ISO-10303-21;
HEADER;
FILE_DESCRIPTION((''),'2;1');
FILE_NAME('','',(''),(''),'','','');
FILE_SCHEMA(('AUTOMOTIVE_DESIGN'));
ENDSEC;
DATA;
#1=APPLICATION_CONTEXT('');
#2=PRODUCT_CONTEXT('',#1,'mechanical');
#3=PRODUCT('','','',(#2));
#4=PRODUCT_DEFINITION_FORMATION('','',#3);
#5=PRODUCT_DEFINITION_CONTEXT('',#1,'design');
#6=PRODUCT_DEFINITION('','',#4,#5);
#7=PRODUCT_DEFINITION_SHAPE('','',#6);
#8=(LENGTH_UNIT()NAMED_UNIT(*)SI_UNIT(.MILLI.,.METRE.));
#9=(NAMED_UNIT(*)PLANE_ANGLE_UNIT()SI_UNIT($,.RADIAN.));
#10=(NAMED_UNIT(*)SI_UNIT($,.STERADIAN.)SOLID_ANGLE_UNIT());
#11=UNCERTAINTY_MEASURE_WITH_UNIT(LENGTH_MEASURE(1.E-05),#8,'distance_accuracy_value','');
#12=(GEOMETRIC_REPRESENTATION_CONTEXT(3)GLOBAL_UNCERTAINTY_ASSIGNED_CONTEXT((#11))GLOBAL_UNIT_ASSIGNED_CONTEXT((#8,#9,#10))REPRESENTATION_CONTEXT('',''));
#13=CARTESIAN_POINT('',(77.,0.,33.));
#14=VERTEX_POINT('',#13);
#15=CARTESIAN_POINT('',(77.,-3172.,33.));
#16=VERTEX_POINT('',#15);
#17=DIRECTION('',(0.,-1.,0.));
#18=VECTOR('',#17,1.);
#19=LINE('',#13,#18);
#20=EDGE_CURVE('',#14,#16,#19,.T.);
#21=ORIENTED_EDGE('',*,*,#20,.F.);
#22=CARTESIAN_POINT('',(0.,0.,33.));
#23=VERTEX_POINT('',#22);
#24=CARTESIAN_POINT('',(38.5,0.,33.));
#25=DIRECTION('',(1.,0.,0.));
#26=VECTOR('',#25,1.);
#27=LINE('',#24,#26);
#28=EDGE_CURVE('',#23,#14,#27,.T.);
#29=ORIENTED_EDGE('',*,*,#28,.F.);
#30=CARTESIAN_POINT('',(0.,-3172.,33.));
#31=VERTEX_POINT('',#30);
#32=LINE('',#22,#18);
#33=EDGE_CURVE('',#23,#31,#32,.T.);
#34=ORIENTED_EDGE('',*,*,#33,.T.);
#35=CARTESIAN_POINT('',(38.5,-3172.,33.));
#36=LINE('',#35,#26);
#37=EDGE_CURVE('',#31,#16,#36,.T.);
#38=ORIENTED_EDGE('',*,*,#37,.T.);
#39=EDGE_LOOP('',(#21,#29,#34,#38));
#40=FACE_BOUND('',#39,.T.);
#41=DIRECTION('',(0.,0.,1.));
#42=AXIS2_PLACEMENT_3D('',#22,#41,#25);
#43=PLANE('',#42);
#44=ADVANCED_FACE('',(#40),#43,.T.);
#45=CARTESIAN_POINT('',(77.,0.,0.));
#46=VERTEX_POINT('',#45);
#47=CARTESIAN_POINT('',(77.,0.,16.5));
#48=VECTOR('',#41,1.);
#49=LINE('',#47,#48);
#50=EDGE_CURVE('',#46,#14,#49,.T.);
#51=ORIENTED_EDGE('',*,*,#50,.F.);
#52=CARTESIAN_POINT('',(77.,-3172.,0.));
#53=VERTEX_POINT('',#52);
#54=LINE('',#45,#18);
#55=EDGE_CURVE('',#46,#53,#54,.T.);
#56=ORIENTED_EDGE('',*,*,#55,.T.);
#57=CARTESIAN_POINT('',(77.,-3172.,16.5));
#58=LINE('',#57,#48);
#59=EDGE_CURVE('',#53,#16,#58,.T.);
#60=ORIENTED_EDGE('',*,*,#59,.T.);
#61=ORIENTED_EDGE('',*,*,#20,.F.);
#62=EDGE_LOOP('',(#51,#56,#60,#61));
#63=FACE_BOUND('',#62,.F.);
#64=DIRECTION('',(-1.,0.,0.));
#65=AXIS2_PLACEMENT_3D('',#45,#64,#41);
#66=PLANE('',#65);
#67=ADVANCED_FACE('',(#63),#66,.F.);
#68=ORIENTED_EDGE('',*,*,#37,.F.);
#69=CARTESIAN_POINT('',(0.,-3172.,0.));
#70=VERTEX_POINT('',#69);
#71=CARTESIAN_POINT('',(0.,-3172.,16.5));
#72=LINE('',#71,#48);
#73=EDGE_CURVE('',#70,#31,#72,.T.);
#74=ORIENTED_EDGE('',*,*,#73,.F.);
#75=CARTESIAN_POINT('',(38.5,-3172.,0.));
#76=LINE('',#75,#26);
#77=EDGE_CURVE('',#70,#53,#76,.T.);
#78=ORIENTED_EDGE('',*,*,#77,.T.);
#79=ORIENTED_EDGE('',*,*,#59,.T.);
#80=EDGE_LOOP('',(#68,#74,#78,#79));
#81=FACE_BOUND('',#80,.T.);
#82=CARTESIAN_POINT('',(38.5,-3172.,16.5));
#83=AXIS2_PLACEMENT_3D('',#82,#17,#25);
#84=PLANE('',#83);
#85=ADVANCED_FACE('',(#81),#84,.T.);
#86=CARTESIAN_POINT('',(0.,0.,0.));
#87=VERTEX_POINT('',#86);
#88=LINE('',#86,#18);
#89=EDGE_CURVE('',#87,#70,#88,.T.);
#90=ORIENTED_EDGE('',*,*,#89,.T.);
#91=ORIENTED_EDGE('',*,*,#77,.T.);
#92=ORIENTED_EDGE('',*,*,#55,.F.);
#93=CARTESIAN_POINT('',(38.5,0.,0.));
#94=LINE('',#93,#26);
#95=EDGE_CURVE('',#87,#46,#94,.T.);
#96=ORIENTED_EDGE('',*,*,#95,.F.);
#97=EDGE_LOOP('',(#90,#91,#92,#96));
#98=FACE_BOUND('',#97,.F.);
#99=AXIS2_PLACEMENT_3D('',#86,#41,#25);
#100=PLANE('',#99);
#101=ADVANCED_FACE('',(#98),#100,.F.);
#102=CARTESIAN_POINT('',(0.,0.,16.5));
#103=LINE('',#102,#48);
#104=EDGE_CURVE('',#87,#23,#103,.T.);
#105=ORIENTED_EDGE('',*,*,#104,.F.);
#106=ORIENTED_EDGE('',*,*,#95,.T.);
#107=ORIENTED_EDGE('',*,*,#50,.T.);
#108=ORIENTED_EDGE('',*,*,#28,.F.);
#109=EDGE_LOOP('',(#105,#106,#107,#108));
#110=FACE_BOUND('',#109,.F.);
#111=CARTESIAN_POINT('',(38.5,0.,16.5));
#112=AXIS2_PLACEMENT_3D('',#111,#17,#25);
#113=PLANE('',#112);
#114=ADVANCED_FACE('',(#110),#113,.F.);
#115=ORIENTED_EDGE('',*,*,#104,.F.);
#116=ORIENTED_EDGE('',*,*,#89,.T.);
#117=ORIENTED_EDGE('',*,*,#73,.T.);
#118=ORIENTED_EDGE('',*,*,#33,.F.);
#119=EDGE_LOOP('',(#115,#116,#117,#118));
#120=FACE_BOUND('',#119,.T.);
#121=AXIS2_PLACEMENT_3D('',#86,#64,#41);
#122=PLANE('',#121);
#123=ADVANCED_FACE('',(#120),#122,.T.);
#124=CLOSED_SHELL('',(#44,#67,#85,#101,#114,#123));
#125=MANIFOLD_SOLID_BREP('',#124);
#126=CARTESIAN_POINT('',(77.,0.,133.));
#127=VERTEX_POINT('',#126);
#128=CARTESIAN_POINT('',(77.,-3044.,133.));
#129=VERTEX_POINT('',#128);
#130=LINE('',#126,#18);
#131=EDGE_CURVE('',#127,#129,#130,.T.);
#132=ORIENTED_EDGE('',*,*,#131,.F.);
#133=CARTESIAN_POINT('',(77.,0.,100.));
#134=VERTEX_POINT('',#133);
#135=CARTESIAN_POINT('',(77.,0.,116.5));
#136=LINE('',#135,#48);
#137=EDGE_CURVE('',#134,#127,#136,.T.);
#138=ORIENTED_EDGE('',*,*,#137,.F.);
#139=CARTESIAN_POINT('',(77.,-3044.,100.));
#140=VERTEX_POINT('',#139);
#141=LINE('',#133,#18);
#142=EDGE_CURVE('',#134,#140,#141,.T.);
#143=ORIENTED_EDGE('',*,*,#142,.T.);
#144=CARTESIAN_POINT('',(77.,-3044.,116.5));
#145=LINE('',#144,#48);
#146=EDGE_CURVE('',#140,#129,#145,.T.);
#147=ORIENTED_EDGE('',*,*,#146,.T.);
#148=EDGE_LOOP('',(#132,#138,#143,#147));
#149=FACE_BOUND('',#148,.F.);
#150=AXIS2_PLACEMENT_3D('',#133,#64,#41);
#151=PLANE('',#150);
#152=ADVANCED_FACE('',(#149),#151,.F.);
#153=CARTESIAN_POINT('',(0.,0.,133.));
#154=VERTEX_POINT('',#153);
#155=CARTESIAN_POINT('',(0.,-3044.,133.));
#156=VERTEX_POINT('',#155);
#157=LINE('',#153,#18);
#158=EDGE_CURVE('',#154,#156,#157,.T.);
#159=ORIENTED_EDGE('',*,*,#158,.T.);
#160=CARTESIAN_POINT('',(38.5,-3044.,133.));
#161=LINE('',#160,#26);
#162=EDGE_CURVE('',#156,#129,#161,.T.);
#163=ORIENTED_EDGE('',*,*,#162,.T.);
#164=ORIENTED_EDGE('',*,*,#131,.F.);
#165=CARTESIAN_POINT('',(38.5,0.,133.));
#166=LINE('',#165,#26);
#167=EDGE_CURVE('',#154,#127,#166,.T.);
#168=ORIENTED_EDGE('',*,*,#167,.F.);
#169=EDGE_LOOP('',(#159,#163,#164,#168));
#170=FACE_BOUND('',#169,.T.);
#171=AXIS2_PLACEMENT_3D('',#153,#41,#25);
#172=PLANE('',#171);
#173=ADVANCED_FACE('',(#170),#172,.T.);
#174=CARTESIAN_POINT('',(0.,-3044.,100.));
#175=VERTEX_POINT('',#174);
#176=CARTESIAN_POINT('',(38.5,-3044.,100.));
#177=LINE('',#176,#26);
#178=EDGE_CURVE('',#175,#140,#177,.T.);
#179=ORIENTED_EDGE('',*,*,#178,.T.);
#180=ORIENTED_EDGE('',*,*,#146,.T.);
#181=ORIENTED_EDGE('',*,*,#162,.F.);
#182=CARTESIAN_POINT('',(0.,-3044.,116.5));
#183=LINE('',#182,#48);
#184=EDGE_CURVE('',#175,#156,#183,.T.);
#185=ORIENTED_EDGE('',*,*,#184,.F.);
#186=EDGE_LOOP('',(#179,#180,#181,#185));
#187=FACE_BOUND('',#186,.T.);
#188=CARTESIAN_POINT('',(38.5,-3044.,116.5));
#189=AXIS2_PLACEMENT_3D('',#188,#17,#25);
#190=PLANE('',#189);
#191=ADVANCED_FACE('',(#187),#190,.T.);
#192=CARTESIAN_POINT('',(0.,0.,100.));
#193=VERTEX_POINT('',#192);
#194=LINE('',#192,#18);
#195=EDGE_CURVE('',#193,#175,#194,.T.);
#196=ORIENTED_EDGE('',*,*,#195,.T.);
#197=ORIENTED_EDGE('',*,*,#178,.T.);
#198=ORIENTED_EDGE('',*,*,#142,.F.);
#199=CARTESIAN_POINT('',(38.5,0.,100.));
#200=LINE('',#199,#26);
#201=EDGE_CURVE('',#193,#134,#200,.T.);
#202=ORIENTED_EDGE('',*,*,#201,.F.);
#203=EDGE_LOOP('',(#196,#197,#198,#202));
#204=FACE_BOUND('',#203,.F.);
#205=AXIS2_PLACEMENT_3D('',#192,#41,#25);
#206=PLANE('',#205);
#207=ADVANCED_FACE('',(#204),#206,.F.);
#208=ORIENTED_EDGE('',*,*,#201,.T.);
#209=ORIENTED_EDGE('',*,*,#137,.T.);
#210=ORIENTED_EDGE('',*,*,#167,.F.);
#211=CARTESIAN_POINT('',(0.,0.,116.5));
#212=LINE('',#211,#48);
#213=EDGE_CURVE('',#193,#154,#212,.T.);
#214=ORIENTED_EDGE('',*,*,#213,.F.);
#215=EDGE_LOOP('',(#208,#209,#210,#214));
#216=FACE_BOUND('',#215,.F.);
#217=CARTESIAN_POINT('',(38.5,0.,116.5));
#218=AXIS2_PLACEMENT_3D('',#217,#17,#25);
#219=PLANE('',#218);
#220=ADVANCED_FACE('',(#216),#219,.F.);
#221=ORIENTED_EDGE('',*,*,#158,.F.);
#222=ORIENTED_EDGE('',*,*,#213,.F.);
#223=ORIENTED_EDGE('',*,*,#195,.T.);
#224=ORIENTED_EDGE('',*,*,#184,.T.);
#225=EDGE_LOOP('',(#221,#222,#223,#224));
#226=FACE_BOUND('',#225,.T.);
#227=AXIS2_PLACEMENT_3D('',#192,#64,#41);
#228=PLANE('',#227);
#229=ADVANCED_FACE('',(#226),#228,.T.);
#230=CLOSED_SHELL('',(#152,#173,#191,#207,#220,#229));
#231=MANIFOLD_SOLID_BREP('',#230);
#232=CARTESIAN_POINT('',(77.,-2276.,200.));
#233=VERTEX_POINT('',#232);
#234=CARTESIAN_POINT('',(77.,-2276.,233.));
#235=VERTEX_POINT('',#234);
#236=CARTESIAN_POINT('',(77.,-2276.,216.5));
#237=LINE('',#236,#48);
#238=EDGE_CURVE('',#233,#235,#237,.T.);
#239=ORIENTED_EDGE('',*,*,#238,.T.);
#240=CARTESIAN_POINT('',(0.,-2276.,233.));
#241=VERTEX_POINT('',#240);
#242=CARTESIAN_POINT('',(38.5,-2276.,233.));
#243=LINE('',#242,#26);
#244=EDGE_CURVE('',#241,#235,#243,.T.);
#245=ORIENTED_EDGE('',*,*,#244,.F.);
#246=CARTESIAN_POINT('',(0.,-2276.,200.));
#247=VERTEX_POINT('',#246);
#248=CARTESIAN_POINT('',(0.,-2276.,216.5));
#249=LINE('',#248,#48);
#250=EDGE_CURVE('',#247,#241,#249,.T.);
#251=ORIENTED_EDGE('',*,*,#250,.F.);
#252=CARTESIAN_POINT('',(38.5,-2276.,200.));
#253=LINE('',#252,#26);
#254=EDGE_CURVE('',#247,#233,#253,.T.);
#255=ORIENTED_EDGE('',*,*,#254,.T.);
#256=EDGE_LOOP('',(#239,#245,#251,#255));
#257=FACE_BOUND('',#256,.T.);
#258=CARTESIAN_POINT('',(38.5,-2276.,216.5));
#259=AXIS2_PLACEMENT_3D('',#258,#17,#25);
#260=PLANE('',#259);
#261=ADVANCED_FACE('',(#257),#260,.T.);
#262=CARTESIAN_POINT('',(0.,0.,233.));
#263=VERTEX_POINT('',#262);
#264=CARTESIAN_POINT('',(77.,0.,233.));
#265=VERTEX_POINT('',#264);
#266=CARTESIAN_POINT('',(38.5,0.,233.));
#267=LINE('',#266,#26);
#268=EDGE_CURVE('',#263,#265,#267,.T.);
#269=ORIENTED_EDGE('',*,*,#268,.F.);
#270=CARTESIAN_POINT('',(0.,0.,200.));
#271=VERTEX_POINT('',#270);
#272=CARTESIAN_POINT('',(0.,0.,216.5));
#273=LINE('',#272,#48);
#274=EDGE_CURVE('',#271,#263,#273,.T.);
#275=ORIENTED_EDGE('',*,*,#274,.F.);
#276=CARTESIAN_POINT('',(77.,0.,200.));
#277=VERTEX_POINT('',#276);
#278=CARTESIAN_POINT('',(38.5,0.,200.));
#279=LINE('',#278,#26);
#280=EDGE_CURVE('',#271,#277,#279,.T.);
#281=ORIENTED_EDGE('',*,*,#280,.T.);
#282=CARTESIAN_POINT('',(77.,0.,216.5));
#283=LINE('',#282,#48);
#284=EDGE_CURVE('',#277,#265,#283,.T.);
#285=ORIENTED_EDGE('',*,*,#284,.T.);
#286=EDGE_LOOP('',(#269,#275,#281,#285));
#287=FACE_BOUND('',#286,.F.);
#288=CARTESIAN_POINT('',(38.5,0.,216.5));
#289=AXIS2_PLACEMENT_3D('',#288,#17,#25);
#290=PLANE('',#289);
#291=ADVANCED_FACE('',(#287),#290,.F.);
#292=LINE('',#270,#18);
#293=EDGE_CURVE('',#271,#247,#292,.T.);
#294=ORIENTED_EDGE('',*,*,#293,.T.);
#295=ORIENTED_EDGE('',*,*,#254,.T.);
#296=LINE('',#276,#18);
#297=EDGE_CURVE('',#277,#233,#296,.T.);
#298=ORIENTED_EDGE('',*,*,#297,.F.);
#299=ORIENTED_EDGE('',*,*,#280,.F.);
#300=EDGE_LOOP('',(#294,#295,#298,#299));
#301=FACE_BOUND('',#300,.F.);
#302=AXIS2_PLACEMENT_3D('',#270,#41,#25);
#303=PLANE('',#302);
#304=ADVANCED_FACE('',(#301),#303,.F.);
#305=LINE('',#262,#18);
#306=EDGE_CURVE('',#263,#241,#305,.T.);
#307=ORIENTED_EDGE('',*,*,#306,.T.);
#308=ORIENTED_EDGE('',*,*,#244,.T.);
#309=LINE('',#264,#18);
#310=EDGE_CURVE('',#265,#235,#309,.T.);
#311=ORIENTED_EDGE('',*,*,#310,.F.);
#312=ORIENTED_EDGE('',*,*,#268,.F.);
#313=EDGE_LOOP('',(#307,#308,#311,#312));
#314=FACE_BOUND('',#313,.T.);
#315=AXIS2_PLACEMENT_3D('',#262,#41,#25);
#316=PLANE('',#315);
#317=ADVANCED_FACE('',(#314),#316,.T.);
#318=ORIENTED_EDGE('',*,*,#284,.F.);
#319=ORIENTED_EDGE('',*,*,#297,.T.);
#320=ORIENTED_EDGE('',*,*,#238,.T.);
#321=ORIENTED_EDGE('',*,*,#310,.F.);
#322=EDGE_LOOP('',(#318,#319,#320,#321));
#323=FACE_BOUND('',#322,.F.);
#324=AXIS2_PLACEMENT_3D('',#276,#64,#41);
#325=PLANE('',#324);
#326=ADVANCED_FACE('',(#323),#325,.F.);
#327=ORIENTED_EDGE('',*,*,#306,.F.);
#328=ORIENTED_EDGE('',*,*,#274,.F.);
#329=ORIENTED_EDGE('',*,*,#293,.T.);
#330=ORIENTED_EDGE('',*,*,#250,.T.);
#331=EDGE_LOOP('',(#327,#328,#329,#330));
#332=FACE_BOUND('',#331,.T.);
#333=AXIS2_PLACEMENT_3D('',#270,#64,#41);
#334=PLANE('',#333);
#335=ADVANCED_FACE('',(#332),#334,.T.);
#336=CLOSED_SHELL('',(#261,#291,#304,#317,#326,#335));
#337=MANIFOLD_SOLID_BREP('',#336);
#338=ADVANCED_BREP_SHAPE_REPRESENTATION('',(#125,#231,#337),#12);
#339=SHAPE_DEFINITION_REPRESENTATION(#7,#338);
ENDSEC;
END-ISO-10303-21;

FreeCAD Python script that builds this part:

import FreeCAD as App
import Part
import Sketcher

doc = App.newDocument("Part")
body = doc.addObject("PartDesign::Body", "Body")

sketch1 = body.newObject("Sketcher::SketchObject", "Sketch")
sketch1.AttachmentSupport = (doc.getObject("XZ_Plane"), [""])
sketch1.MapMode = "FlatFace"
sketch1.addGeometry([
    Part.LineSegment(App.Vector(0, 33, 0), App.Vector(0, 0, 0)),
    Part.LineSegment(App.Vector(0, 0, 0), App.Vector(77, 0, 0)),
    Part.LineSegment(App.Vector(77, 0, 0), App.Vector(77, 33, 0)),
    Part.LineSegment(App.Vector(77, 33, 0), App.Vector(0, 33, 0)),
], False)
sketch1.addConstraint([
    Sketcher.Constraint("Coincident", 0, 2, 1, 1),
    Sketcher.Constraint("Coincident", 1, 2, 2, 1),
    Sketcher.Constraint("Coincident", 2, 2, 3, 1),
    Sketcher.Constraint("Coincident", 3, 2, 0, 1),
    Sketcher.Constraint("Vertical", 0),
    Sketcher.Constraint("Horizontal", 1),
    Sketcher.Constraint("Vertical", 2),
    Sketcher.Constraint("Horizontal", 3),
    Sketcher.Constraint("Coincident", 0, 2, -1, 1),
    Sketcher.Constraint("DistanceX", 1, 1, 1, 2, 77.0),
    Sketcher.Constraint("DistanceY", 0, 2, 0, 1, 33.0),
])
pad1 = body.newObject("PartDesign::Pad", "Pad")
pad1.Profile = sketch1
pad1.Length = 3172
body2 = doc.addObject("PartDesign::Body", "Body001")

sketch2 = body2.newObject("Sketcher::SketchObject", "Sketch001")
sketch2.AttachmentSupport = (doc.getObject("XZ_Plane001"), [""])
sketch2.MapMode = "FlatFace"
sketch2.addGeometry([
    Part.LineSegment(App.Vector(0, 133, 0), App.Vector(0, 100, 0)),
    Part.LineSegment(App.Vector(0, 100, 0), App.Vector(77, 100, 0)),
    Part.LineSegment(App.Vector(77, 100, 0), App.Vector(77, 133, 0)),
    Part.LineSegment(App.Vector(77, 133, 0), App.Vector(0, 133, 0)),
], False)
sketch2.addConstraint([
    Sketcher.Constraint("Coincident", 0, 2, 1, 1),
    Sketcher.Constraint("Coincident", 1, 2, 2, 1),
    Sketcher.Constraint("Coincident", 2, 2, 3, 1),
    Sketcher.Constraint("Coincident", 3, 2, 0, 1),
    Sketcher.Constraint("Vertical", 0),
    Sketcher.Constraint("Horizontal", 1),
    Sketcher.Constraint("Vertical", 2),
    Sketcher.Constraint("Horizontal", 3),
    Sketcher.Constraint("PointOnObject", 0, 2, -2),
    Sketcher.Constraint("DistanceX", 1, 1, 1, 2, 77.0),
    Sketcher.Constraint("DistanceY", 0, 2, 0, 1, 33.0),
    Sketcher.Constraint("DistanceY", -1, 1, 0, 2, 100.0),
])
pad2 = body2.newObject("PartDesign::Pad", "Pad001")
pad2.Profile = sketch2
pad2.Length = 3044
body3 = doc.addObject("PartDesign::Body", "Body002")

sketch3 = body3.newObject("Sketcher::SketchObject", "Sketch002")
sketch3.AttachmentSupport = (doc.getObject("XZ_Plane002"), [""])
sketch3.MapMode = "FlatFace"
sketch3.addGeometry([
    Part.LineSegment(App.Vector(0, 233, 0), App.Vector(0, 200, 0)),
    Part.LineSegment(App.Vector(0, 200, 0), App.Vector(77, 200, 0)),
    Part.LineSegment(App.Vector(77, 200, 0), App.Vector(77, 233, 0)),
    Part.LineSegment(App.Vector(77, 233, 0), App.Vector(0, 233, 0)),
], False)
sketch3.addConstraint([
    Sketcher.Constraint("Coincident", 0, 2, 1, 1),
    Sketcher.Constraint("Coincident", 1, 2, 2, 1),
    Sketcher.Constraint("Coincident", 2, 2, 3, 1),
    Sketcher.Constraint("Coincident", 3, 2, 0, 1),
    Sketcher.Constraint("Vertical", 0),
    Sketcher.Constraint("Horizontal", 1),
    Sketcher.Constraint("Vertical", 2),
    Sketcher.Constraint("Horizontal", 3),
    Sketcher.Constraint("PointOnObject", 0, 2, -2),
    Sketcher.Constraint("DistanceX", 1, 1, 1, 2, 77.0),
    Sketcher.Constraint("DistanceY", 0, 2, 0, 1, 33.0),
    Sketcher.Constraint("DistanceY", -1, 1, 0, 2, 200.0),
])
pad3 = body3.newObject("PartDesign::Pad", "Pad002")
pad3.Profile = sketch3
pad3.Length = 2276

doc.recompute()
